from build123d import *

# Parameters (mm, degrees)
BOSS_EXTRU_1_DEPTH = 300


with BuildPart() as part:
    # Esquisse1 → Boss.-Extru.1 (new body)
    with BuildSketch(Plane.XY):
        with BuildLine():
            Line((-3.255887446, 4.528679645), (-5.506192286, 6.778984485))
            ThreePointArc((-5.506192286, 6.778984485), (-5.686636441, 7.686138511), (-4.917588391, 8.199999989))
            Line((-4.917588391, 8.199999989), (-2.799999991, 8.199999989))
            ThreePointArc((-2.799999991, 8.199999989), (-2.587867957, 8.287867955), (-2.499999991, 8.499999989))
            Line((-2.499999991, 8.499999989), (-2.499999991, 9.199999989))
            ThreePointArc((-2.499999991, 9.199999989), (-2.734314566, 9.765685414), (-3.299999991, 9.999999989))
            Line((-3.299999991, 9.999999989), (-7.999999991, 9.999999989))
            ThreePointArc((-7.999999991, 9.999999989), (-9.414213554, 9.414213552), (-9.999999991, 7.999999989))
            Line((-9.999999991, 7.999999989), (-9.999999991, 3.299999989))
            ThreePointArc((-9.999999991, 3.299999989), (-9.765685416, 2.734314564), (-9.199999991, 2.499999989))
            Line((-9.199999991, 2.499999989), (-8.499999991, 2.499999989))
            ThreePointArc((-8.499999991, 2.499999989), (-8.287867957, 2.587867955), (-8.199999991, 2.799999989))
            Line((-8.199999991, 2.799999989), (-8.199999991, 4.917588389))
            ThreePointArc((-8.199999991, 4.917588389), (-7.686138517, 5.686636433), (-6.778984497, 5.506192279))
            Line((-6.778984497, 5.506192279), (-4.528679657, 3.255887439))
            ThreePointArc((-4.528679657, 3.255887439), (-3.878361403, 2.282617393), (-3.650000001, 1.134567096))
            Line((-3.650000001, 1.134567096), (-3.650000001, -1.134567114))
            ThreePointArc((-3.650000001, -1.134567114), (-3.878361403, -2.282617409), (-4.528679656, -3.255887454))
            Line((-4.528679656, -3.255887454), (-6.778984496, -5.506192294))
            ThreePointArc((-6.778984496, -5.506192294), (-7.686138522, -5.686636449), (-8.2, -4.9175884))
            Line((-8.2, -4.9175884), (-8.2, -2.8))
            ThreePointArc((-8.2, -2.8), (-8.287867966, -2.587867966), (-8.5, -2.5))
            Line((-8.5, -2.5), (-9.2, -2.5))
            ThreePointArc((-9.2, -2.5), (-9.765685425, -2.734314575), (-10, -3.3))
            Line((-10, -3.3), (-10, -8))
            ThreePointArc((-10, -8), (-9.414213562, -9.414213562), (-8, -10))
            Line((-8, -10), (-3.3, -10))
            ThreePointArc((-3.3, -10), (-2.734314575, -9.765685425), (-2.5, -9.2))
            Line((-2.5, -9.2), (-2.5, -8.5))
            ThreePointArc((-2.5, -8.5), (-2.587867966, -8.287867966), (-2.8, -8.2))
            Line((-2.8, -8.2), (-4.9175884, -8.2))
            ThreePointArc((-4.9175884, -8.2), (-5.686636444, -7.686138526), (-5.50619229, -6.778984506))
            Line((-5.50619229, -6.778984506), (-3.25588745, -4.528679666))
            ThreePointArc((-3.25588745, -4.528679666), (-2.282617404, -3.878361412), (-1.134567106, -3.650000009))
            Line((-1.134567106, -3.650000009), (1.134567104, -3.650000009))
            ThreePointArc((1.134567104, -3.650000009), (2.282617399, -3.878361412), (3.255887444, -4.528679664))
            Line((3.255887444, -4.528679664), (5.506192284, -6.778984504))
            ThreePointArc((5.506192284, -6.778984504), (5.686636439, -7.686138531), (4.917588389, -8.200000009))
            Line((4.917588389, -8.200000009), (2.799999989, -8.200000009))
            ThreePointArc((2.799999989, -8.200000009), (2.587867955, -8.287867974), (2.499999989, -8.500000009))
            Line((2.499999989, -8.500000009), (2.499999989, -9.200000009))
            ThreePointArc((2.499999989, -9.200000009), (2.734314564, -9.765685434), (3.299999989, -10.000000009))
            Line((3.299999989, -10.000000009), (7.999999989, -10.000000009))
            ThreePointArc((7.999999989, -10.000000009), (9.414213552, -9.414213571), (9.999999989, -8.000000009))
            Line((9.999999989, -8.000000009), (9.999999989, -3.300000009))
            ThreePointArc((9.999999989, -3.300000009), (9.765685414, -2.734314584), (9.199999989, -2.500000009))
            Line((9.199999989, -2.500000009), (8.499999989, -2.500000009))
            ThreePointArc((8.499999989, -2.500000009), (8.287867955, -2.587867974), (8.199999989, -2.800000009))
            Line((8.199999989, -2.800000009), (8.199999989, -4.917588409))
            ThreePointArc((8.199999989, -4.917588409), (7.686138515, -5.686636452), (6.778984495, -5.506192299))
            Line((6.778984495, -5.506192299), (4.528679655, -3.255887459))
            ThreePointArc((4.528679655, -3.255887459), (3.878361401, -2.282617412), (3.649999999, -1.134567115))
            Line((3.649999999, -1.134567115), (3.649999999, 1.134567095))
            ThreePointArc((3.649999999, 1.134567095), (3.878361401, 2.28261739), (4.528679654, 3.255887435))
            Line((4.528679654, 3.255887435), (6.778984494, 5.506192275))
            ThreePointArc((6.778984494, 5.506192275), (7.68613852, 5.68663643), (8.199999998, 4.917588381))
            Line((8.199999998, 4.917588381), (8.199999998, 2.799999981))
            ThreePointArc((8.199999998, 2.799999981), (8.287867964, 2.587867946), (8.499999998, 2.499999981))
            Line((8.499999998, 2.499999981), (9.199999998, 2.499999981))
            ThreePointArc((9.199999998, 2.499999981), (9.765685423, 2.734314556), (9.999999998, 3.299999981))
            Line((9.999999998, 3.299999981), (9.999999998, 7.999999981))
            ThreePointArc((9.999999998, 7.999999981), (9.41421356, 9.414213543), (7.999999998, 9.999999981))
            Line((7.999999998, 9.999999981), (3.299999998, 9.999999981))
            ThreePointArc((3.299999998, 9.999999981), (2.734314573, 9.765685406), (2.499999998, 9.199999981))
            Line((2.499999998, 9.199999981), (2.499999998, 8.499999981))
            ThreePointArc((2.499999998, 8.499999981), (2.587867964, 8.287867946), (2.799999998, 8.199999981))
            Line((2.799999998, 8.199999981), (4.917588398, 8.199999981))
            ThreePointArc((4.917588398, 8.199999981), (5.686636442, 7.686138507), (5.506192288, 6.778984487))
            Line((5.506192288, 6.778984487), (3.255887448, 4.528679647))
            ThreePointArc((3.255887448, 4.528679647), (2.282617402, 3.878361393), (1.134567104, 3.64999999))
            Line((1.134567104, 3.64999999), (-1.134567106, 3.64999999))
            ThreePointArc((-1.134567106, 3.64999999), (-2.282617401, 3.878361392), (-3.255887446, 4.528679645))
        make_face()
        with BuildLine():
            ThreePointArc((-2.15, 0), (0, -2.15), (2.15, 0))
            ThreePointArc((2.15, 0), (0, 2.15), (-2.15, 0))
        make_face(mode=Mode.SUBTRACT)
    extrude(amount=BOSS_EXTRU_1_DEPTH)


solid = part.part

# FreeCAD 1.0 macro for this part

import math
import FreeCAD as App
import Part
import Sketcher
Q = App.Units.Quantity

doc = App.newDocument("Part")
body = doc.addObject("PartDesign::Body", "Body")

# Sketch on XY plane
sketch1 = body.newObject("Sketcher::SketchObject", "Sketch")
sketch1.AttachmentSupport = (doc.getObject("XY_Plane"), [""])
sketch1.MapMode = "FlatFace"
sketch1.addGeometry(Part.LineSegment(App.Vector(-3.255887, 4.52868, 0), App.Vector(-5.506192, 6.778984, 0)), False)
sketch1.addGeometry(Part.ArcOfCircle(Part.Circle(App.Vector(-4.917588, 7.367588, 0), App.Vector(0, 0, 1), 0.832412), math.radians(90), math.radians(225)), False)
sketch1.addGeometry(Part.LineSegment(App.Vector(-4.917588, 8.2, 0), App.Vector(-2.8, 8.2, 0)), False)
sketch1.addGeometry(Part.ArcOfCircle(Part.Circle(App.Vector(-2.8, 8.5, 0), App.Vector(0, 0, 1), 0.3), math.radians(-90), math.radians(0)), False)
sketch1.addGeometry(Part.LineSegment(App.Vector(-2.5, 8.5, 0), App.Vector(-2.5, 9.2, 0)), False)
sketch1.addGeometry(Part.ArcOfCircle(Part.Circle(App.Vector(-3.3, 9.2, 0), App.Vector(0, 0, 1), 0.8), math.radians(0), math.radians(90)), False)
sketch1.addGeometry(Part.LineSegment(App.Vector(-3.3, 10, 0), App.Vector(-8, 10, 0)), False)
sketch1.addGeometry(Part.ArcOfCircle(Part.Circle(App.Vector(-8, 8, 0), App.Vector(0, 0, 1), 2), math.radians(90), math.radians(180)), False)
sketch1.addGeometry(Part.LineSegment(App.Vector(-10, 8, 0), App.Vector(-10, 3.3, 0)), False)
sketch1.addGeometry(Part.ArcOfCircle(Part.Circle(App.Vector(-9.2, 3.3, 0), App.Vector(0, 0, 1), 0.8), math.radians(180), math.radians(270)), False)
sketch1.addGeometry(Part.LineSegment(App.Vector(-9.2, 2.5, 0), App.Vector(-8.5, 2.5, 0)), False)
sketch1.addGeometry(Part.ArcOfCircle(Part.Circle(App.Vector(-8.5, 2.8, 0), App.Vector(0, 0, 1), 0.3), math.radians(-90), math.radians(0)), False)
sketch1.addGeometry(Part.LineSegment(App.Vector(-8.2, 2.8, 0), App.Vector(-8.2, 4.917588, 0)), False)
sketch1.addGeometry(Part.ArcOfCircle(Part.Circle(App.Vector(-7.367588, 4.917588, 0), App.Vector(0, 0, 1), 0.832412), math.radians(45), math.radians(180)), False)
sketch1.addGeometry(Part.LineSegment(App.Vector(-6.778984, 5.506192, 0), App.Vector(-4.52868, 3.255887, 0)), False)
sketch1.addGeometry(Part.ArcOfCircle(Part.Circle(App.Vector(-6.65, 1.134567, 0), App.Vector(0, 0, 1), 3), math.radians(0), math.radians(45)), False)
sketch1.addGeometry(Part.LineSegment(App.Vector(-3.65, 1.134567, 0), App.Vector(-3.65, -1.134567, 0)), False)
sketch1.addGeometry(Part.ArcOfCircle(Part.Circle(App.Vector(-6.65, -1.134567, 0), App.Vector(0, 0, 1), 3), math.radians(-45), math.radians(0)), False)
sketch1.addGeometry(Part.LineSegment(App.Vector(-4.52868, -3.255887, 0), App.Vector(-6.778984, -5.506192, 0)), False)
sketch1.addGeometry(Part.ArcOfCircle(Part.Circle(App.Vector(-7.367588, -4.917588, 0), App.Vector(0, 0, 1), 0.832412), math.radians(180), math.radians(315)), False)
sketch1.addGeometry(Part.LineSegment(App.Vector(-8.2, -4.917588, 0), App.Vector(-8.2, -2.8, 0)), False)
sketch1.addGeometry(Part.ArcOfCircle(Part.Circle(App.Vector(-8.5, -2.8, 0), App.Vector(0, 0, 1), 0.3), math.radians(0), math.radians(90)), False)
sketch1.addGeometry(Part.LineSegment(App.Vector(-8.5, -2.5, 0), App.Vector(-9.2, -2.5, 0)), False)
sketch1.addGeometry(Part.ArcOfCircle(Part.Circle(App.Vector(-9.2, -3.3, 0), App.Vector(0, 0, 1), 0.8), math.radians(90), math.radians(180)), False)
sketch1.addGeometry(Part.LineSegment(App.Vector(-10, -3.3, 0), App.Vector(-10, -8, 0)), False)
sketch1.addGeometry(Part.ArcOfCircle(Part.Circle(App.Vector(-8, -8, 0), App.Vector(0, 0, 1), 2), math.radians(-180), math.radians(-90)), False)
sketch1.addGeometry(Part.LineSegment(App.Vector(-8, -10, 0), App.Vector(-3.3, -10, 0)), False)
sketch1.addGeometry(Part.ArcOfCircle(Part.Circle(App.Vector(-3.3, -9.2, 0), App.Vector(0, 0, 1), 0.8), math.radians(-90), math.radians(0)), False)
sketch1.addGeometry(Part.LineSegment(App.Vector(-2.5, -9.2, 0), App.Vector(-2.5, -8.5, 0)), False)
sketch1.addGeometry(Part.ArcOfCircle(Part.Circle(App.Vector(-2.8, -8.5, 0), App.Vector(0, 0, 1), 0.3), math.radians(0), math.radians(90)), False)
sketch1.addGeometry(Part.LineSegment(App.Vector(-2.8, -8.2, 0), App.Vector(-4.917588, -8.2, 0)), False)
sketch1.addGeometry(Part.ArcOfCircle(Part.Circle(App.Vector(-4.917588, -7.367588, 0), App.Vector(0, 0, 1), 0.832412), math.radians(135), math.radians(270)), False)
sketch1.addGeometry(Part.LineSegment(App.Vector(-5.506192, -6.778985, 0), App.Vector(-3.255887, -4.52868, 0)), False)
sketch1.addGeometry(Part.ArcOfCircle(Part.Circle(App.Vector(-1.134567, -6.65, 0), App.Vector(0, 0, 1), 3), math.radians(90), math.radians(135)), False)
sketch1.addGeometry(Part.LineSegment(App.Vector(-1.134567, -3.65, 0), App.Vector(1.134567, -3.65, 0)), False)
sketch1.addGeometry(Part.ArcOfCircle(Part.Circle(App.Vector(1.134567, -6.65, 0), App.Vector(0, 0, 1), 3), math.radians(45), math.radians(90)), False)
sketch1.addGeometry(Part.LineSegment(App.Vector(3.255887, -4.52868, 0), App.Vector(5.506192, -6.778985, 0)), False)
sketch1.addGeometry(Part.ArcOfCircle(Part.Circle(App.Vector(4.917588, -7.367588, 0), App.Vector(0, 0, 1), 0.832412), math.radians(-90), math.radians(45)), False)
sketch1.addGeometry(Part.LineSegment(App.Vector(4.917588, -8.2, 0), App.Vector(2.8, -8.2, 0)), False)
sketch1.addGeometry(Part.ArcOfCircle(Part.Circle(App.Vector(2.8, -8.5, 0), App.Vector(0, 0, 1), 0.3), math.radians(90), math.radians(180)), False)
sketch1.addGeometry(Part.LineSegment(App.Vector(2.5, -8.5, 0), App.Vector(2.5, -9.2, 0)), False)
sketch1.addGeometry(Part.ArcOfCircle(Part.Circle(App.Vector(3.3, -9.2, 0), App.Vector(0, 0, 1), 0.8), math.radians(180), math.radians(270)), False)
sketch1.addGeometry(Part.LineSegment(App.Vector(3.3, -10, 0), App.Vector(8, -10, 0)), False)
sketch1.addGeometry(Part.ArcOfCircle(Part.Circle(App.Vector(8, -8, 0), App.Vector(0, 0, 1), 2), math.radians(-90), math.radians(0)), False)
sketch1.addGeometry(Part.LineSegment(App.Vector(10, -8, 0), App.Vector(10, -3.3, 0)), False)
sketch1.addGeometry(Part.ArcOfCircle(Part.Circle(App.Vector(9.2, -3.3, 0), App.Vector(0, 0, 1), 0.8), math.radians(0), math.radians(90)), False)
sketch1.addGeometry(Part.LineSegment(App.Vector(9.2, -2.5, 0), App.Vector(8.5, -2.5, 0)), False)
sketch1.addGeometry(Part.ArcOfCircle(Part.Circle(App.Vector(8.5, -2.8, 0), App.Vector(0, 0, 1), 0.3), math.radians(90), math.radians(180)), False)
sketch1.addGeometry(Part.LineSegment(App.Vector(8.2, -2.8, 0), App.Vector(8.2, -4.917588, 0)), False)
sketch1.addGeometry(Part.ArcOfCircle(Part.Circle(App.Vector(7.367588, -4.917588, 0), App.Vector(0, 0, 1), 0.832412), math.radians(-135), math.radians(0)), False)
sketch1.addGeometry(Part.LineSegment(App.Vector(6.778984, -5.506192, 0), App.Vector(4.52868, -3.255887, 0)), False)
sketch1.addGeometry(Part.ArcOfCircle(Part.Circle(App.Vector(6.65, -1.134567, 0), App.Vector(0, 0, 1), 3), math.radians(180), math.radians(225)), False)
sketch1.addGeometry(Part.LineSegment(App.Vector(3.65, -1.134567, 0), App.Vector(3.65, 1.134567, 0)), False)
sketch1.addGeometry(Part.ArcOfCircle(Part.Circle(App.Vector(6.65, 1.134567, 0), App.Vector(0, 0, 1), 3), math.radians(135), math.radians(180)), False)
sketch1.addGeometry(Part.LineSegment(App.Vector(4.52868, 3.255887, 0), App.Vector(6.778984, 5.506192, 0)), False)
sketch1.addGeometry(Part.ArcOfCircle(Part.Circle(App.Vector(7.367588, 4.917588, 0), App.Vector(0, 0, 1), 0.832412), math.radians(0), math.radians(135)), False)
sketch1.addGeometry(Part.LineSegment(App.Vector(8.2, 4.917588, 0), App.Vector(8.2, 2.8, 0)), False)
sketch1.addGeometry(Part.ArcOfCircle(Part.Circle(App.Vector(8.5, 2.8, 0), App.Vector(0, 0, 1), 0.3), math.radians(180), math.radians(270)), False)
sketch1.addGeometry(Part.LineSegment(App.Vector(8.5, 2.5, 0), App.Vector(9.2, 2.5, 0)), False)
sketch1.addGeometry(Part.ArcOfCircle(Part.Circle(App.Vector(9.2, 3.3, 0), App.Vector(0, 0, 1), 0.8), math.radians(-90), math.radians(0)), False)
sketch1.addGeometry(Part.LineSegment(App.Vector(10, 3.3, 0), App.Vector(10, 8, 0)), False)
sketch1.addGeometry(Part.ArcOfCircle(Part.Circle(App.Vector(8, 8, 0), App.Vector(0, 0, 1), 2), math.radians(0), math.radians(90)), False)
sketch1.addGeometry(Part.LineSegment(App.Vector(8, 10, 0), App.Vector(3.3, 10, 0)), False)
sketch1.addGeometry(Part.ArcOfCircle(Part.Circle(App.Vector(3.3, 9.2, 0), App.Vector(0, 0, 1), 0.8), math.radians(90), math.radians(180)), False)
sketch1.addGeometry(Part.LineSegment(App.Vector(2.5, 9.2, 0), App.Vector(2.5, 8.5, 0)), False)
sketch1.addGeometry(Part.ArcOfCircle(Part.Circle(App.Vector(2.8, 8.5, 0), App.Vector(0, 0, 1), 0.3), math.radians(180), math.radians(270)), False)
sketch1.addGeometry(Part.LineSegment(App.Vector(2.8, 8.2, 0), App.Vector(4.917588, 8.2, 0)), False)
sketch1.addGeometry(Part.ArcOfCircle(Part.Circle(App.Vector(4.917588, 7.367588, 0), App.Vector(0, 0, 1), 0.832412), math.radians(-45), math.radians(90)), False)
sketch1.addGeometry(Part.LineSegment(App.Vector(5.506192, 6.778984, 0), App.Vector(3.255887, 4.52868, 0)), False)
sketch1.addGeometry(Part.ArcOfCircle(Part.Circle(App.Vector(1.134567, 6.65, 0), App.Vector(0, 0, 1), 3), math.radians(-90), math.radians(-45)), False)
sketch1.addGeometry(Part.LineSegment(App.Vector(1.134567, 3.65, 0), App.Vector(-1.134567, 3.65, 0)), False)
sketch1.addGeometry(Part.ArcOfCircle(Part.Circle(App.Vector(-1.134567, 6.65, 0), App.Vector(0, 0, 1), 3), math.radians(-135), math.radians(-90)), False)
sketch1.addGeometry(Part.Circle(App.Vector(0, 0, 0), App.Vector(0, 0, 1), 2.15), False)
sketch1.addConstraint(Sketcher.Constraint("Tangent", 0, 2, 1, 2))
sketch1.addConstraint(Sketcher.Constraint("Tangent", 1, 1, 2, 1))
sketch1.addConstraint(Sketcher.Constraint("Tangent", 2, 2, 3, 1))
sketch1.addConstraint(Sketcher.Constraint("Tangent", 3, 2, 4, 1))
sketch1.addConstraint(Sketcher.Constraint("Tangent", 4, 2, 5, 1))
sketch1.addConstraint(Sketcher.Constraint("Tangent", 5, 2, 6, 1))
sketch1.addConstraint(Sketcher.Constraint("Tangent", 6, 2, 7, 1))
sketch1.addConstraint(Sketcher.Constraint("Tangent", 7, 2, 8, 1))
sketch1.addConstraint(Sketcher.Constraint("Tangent", 8, 2, 9, 1))
sketch1.addConstraint(Sketcher.Constraint("Tangent", 9, 2, 10, 1))
sketch1.addConstraint(Sketcher.Constraint("Tangent", 10, 2, 11, 1))
sketch1.addConstraint(Sketcher.Constraint("Tangent", 11, 2, 12, 1))
sketch1.addConstraint(Sketcher.Constraint("Tangent", 12, 2, 13, 2))
sketch1.addConstraint(Sketcher.Constraint("Tangent", 13, 1, 14, 1))
sketch1.addConstraint(Sketcher.Constraint("Tangent", 14, 2, 15, 2))
sketch1.addConstraint(Sketcher.Constraint("Tangent", 15, 1, 16, 1))
sketch1.addConstraint(Sketcher.Constraint("Tangent", 16, 2, 17, 2))
sketch1.addConstraint(Sketcher.Constraint("Tangent", 17, 1, 18, 1))
sketch1.addConstraint(Sketcher.Constraint("Tangent", 18, 2, 19, 2))
sketch1.addConstraint(Sketcher.Constraint("Tangent", 19, 1, 20, 1))
sketch1.addConstraint(Sketcher.Constraint("Tangent", 20, 2, 21, 1))
sketch1.addConstraint(Sketcher.Constraint("Tangent", 21, 2, 22, 1))
sketch1.addConstraint(Sketcher.Constraint("Tangent", 22, 2, 23, 1))
sketch1.addConstraint(Sketcher.Constraint("Tangent", 23, 2, 24, 1))
sketch1.addConstraint(Sketcher.Constraint("Tangent", 24, 2, 25, 1))
sketch1.addConstraint(Sketcher.Constraint("Tangent", 25, 2, 26, 1))
sketch1.addConstraint(Sketcher.Constraint("Tangent", 26, 2, 27, 1))
sketch1.addConstraint(Sketcher.Constraint("Tangent", 27, 2, 28, 1))
sketch1.addConstraint(Sketcher.Constraint("Tangent", 28, 2, 29, 1))
sketch1.addConstraint(Sketcher.Constraint("Tangent", 29, 2, 30, 1))
sketch1.addConstraint(Sketcher.Constraint("Tangent", 30, 2, 31, 2))
sketch1.addConstraint(Sketcher.Constraint("Tangent", 31, 1, 32, 1))
sketch1.addConstraint(Sketcher.Constraint("Tangent", 32, 2, 33, 2))
sketch1.addConstraint(Sketcher.Constraint("Tangent", 33, 1, 34, 1))
sketch1.addConstraint(Sketcher.Constraint("Tangent", 34, 2, 35, 2))
sketch1.addConstraint(Sketcher.Constraint("Tangent", 35, 1, 36, 1))
sketch1.addConstraint(Sketcher.Constraint("Tangent", 36, 2, 37, 2))
sketch1.addConstraint(Sketcher.Constraint("Tangent", 37, 1, 38, 1))
sketch1.addConstraint(Sketcher.Constraint("Tangent", 38, 2, 39, 1))
sketch1.addConstraint(Sketcher.Constraint("Tangent", 39, 2, 40, 1))
sketch1.addConstraint(Sketcher.Constraint("Tangent", 40, 2, 41, 1))
sketch1.addConstraint(Sketcher.Constraint("Tangent", 41, 2, 42, 1))
sketch1.addConstraint(Sketcher.Constraint("Tangent", 42, 2, 43, 1))
sketch1.addConstraint(Sketcher.Constraint("Tangent", 43, 2, 44, 1))
sketch1.addConstraint(Sketcher.Constraint("Tangent", 44, 2, 45, 1))
sketch1.addConstraint(Sketcher.Constraint("Tangent", 45, 2, 46, 1))
sketch1.addConstraint(Sketcher.Constraint("Tangent", 46, 2, 47, 1))
sketch1.addConstraint(Sketcher.Constraint("Tangent", 47, 2, 48, 1))
sketch1.addConstraint(Sketcher.Constraint("Tangent", 48, 2, 49, 2))
sketch1.addConstraint(Sketcher.Constraint("Tangent", 49, 1, 50, 1))
sketch1.addConstraint(Sketcher.Constraint("Tangent", 50, 2, 51, 2))
sketch1.addConstraint(Sketcher.Constraint("Tangent", 51, 1, 52, 1))
sketch1.addConstraint(Sketcher.Constraint("Tangent", 52, 2, 53, 2))
sketch1.addConstraint(Sketcher.Constraint("Tangent", 53, 1, 54, 1))
sketch1.addConstraint(Sketcher.Constraint("Tangent", 54, 2, 55, 2))
sketch1.addConstraint(Sketcher.Constraint("Tangent", 55, 1, 56, 1))
sketch1.addConstraint(Sketcher.Constraint("Tangent", 56, 2, 57, 1))
sketch1.addConstraint(Sketcher.Constraint("Tangent", 57, 2, 58, 1))
sketch1.addConstraint(Sketcher.Constraint("Tangent", 58, 2, 59, 1))
sketch1.addConstraint(Sketcher.Constraint("Tangent", 59, 2, 60, 1))
sketch1.addConstraint(Sketcher.Constraint("Tangent", 60, 2, 61, 1))
sketch1.addConstraint(Sketcher.Constraint("Tangent", 61, 2, 62, 1))
sketch1.addConstraint(Sketcher.Constraint("Tangent", 62, 2, 63, 1))
sketch1.addConstraint(Sketcher.Constraint("Tangent", 63, 2, 64, 1))
sketch1.addConstraint(Sketcher.Constraint("Tangent", 64, 2, 65, 1))
sketch1.addConstraint(Sketcher.Constraint("Tangent", 65, 2, 66, 1))
sketch1.addConstraint(Sketcher.Constraint("Tangent", 66, 2, 67, 2))
sketch1.addConstraint(Sketcher.Constraint("Tangent", 67, 1, 68, 1))
sketch1.addConstraint(Sketcher.Constraint("Tangent", 68, 2, 69, 2))
sketch1.addConstraint(Sketcher.Constraint("Tangent", 69, 1, 70, 1))
sketch1.addConstraint(Sketcher.Constraint("Tangent", 70, 2, 71, 2))
sketch1.addConstraint(Sketcher.Constraint("Tangent", 71, 1, 0, 1))
sketch1.addConstraint(Sketcher.Constraint("Horizontal", 2))
sketch1.addConstraint(Sketcher.Constraint("Vertical", 4))
sketch1.addConstraint(Sketcher.Constraint("Horizontal", 6))
sketch1.addConstraint(Sketcher.Constraint("Vertical", 8))
sketch1.addConstraint(Sketcher.Constraint("Horizontal", 10))
sketch1.addConstraint(Sketcher.Constraint("Vertical", 12))
sketch1.addConstraint(Sketcher.Constraint("Vertical", 16))
sketch1.addConstraint(Sketcher.Constraint("Vertical", 20))
sketch1.addConstraint(Sketcher.Constraint("Horizontal", 22))
sketch1.addConstraint(Sketcher.Constraint("Vertical", 24))
sketch1.addConstraint(Sketcher.Constraint("Horizontal", 26))
sketch1.addConstraint(Sketcher.Constraint("Vertical", 28))
sketch1.addConstraint(Sketcher.Constraint("Horizontal", 30))
sketch1.addConstraint(Sketcher.Constraint("Horizontal", 34))
sketch1.addConstraint(Sketcher.Constraint("Horizontal", 38))
sketch1.addConstraint(Sketcher.Constraint("Vertical", 40))
sketch1.addConstraint(Sketcher.Constraint("Horizontal", 42))
sketch1.addConstraint(Sketcher.Constraint("Vertical", 44))
sketch1.addConstraint(Sketcher.Constraint("Horizontal", 46))
sketch1.addConstraint(Sketcher.Constraint("Vertical", 48))
sketch1.addConstraint(Sketcher.Constraint("Vertical", 52))
sketch1.addConstraint(Sketcher.Constraint("Vertical", 56))
sketch1.addConstraint(Sketcher.Constraint("Horizontal", 58))
sketch1.addConstraint(Sketcher.Constraint("Vertical", 60))
sketch1.addConstraint(Sketcher.Constraint("Horizontal", 62))
sketch1.addConstraint(Sketcher.Constraint("Vertical", 64))
sketch1.addConstraint(Sketcher.Constraint("Horizontal", 66))
sketch1.addConstraint(Sketcher.Constraint("Horizontal", 70))
sketch1.addConstraint(Sketcher.Constraint("Coincident", 72, 3, -1, 1))
sketch1.addConstraint(Sketcher.Constraint("Equal", 5, 9))
sketch1.addConstraint(Sketcher.Constraint("Equal", 3, 11))
sketch1.addConstraint(Sketcher.Constraint("Equal", 1, 13))
sketch1.addConstraint(Sketcher.Constraint("Equal", 15, 17))
sketch1.addConstraint(Sketcher.Constraint("Equal", 13, 19))
sketch1.addConstraint(Sketcher.Constraint("Equal", 11, 21))
sketch1.addConstraint(Sketcher.Constraint("Equal", 9, 23))
sketch1.addConstraint(Sketcher.Constraint("Equal", 7, 25))
sketch1.addConstraint(Sketcher.Constraint("Equal", 23, 27))
sketch1.addConstraint(Sketcher.Constraint("Equal", 21, 29))
sketch1.addConstraint(Sketcher.Constraint("Equal", 19, 31))
sketch1.addConstraint(Sketcher.Constraint("Equal", 17, 33))
sketch1.addConstraint(Sketcher.Constraint("Equal", 33, 35))
sketch1.addConstraint(Sketcher.Constraint("Equal", 31, 37))
sketch1.addConstraint(Sketcher.Constraint("Equal", 29, 39))
sketch1.addConstraint(Sketcher.Constraint("Equal", 27, 41))
sketch1.addConstraint(Sketcher.Constraint("Equal", 25, 43))
sketch1.addConstraint(Sketcher.Constraint("Equal", 41, 45))
sketch1.addConstraint(Sketcher.Constraint("Equal", 39, 47))
sketch1.addConstraint(Sketcher.Constraint("Equal", 37, 49))
sketch1.addConstraint(Sketcher.Constraint("Equal", 35, 51))
sketch1.addConstraint(Sketcher.Constraint("Equal", 51, 53))
sketch1.addConstraint(Sketcher.Constraint("Equal", 49, 55))
sketch1.addConstraint(Sketcher.Constraint("Equal", 47, 57))
sketch1.addConstraint(Sketcher.Constraint("Equal", 45, 59))
sketch1.addConstraint(Sketcher.Constraint("Equal", 43, 61))
sketch1.addConstraint(Sketcher.Constraint("Equal", 59, 63))
sketch1.addConstraint(Sketcher.Constraint("Equal", 57, 65))
sketch1.addConstraint(Sketcher.Constraint("Equal", 55, 67))
sketch1.addConstraint(Sketcher.Constraint("Equal", 53, 69))
sketch1.addConstraint(Sketcher.Constraint("Equal", 69, 71))
sketch1.addConstraint(Sketcher.Constraint("Symmetric", 1, 3, 37, 3, -1, 1))
sketch1.addConstraint(Sketcher.Constraint("Symmetric", 5, 3, 41, 3, -1, 1))
sketch1.addConstraint(Sketcher.Constraint("Symmetric", 9, 3, 45, 3, -1, 1))
sketch1.addConstraint(Sketcher.Constraint("Symmetric", 13, 3, 49, 3, -1, 1))
sketch1.addConstraint(Sketcher.Constraint("Symmetric", 15, 3, 51, 3, -1, 1))
sketch1.addConstraint(Sketcher.Constraint("Symmetric", 19, 3, 55, 3, -1, 1))
sketch1.addConstraint(Sketcher.Constraint("Symmetric", 23, 3, 59, 3, -1, 1))
sketch1.addConstraint(Sketcher.Constraint("Symmetric", 27, 3, 63, 3, -1, 1))
sketch1.addConstraint(Sketcher.Constraint("Symmetric", 31, 3, 67, 3, -1, 1))
sketch1.addConstraint(Sketcher.Constraint("Symmetric", 33, 3, 69, 3, -1, 1))
sketch1.addConstraint(Sketcher.Constraint("Symmetric", 31, 3, 37, 3, -2))
sketch1.addConstraint(Sketcher.Constraint("Symmetric", 27, 3, 41, 3, -2))
sketch1.addConstraint(Sketcher.Constraint("Symmetric", 23, 3, 45, 3, -2))
sketch1.addConstraint(Sketcher.Constraint("Symmetric", 19, 3, 49, 3, -2))
sketch1.addConstraint(Sketcher.Constraint("Parallel", 0, 14))
sketch1.addConstraint(Sketcher.Constraint("Perpendicular", 14, 18))
sketch1.addConstraint(Sketcher.Constraint("Parallel", 18, 32))
sketch1.addConstraint(Sketcher.Constraint("Perpendicular", 32, 36))
sketch1.addConstraint(Sketcher.Constraint("Perpendicular", 50, 54))
sketch1.addConstraint(Sketcher.Constraint("Horizontal", 17, 3, 51, 3))
sketch1.addConstraint(Sketcher.Constraint("Equal", 58, 4))
sketch1.addConstraint(Sketcher.Constraint("Equal", 62, 8))
sketch1.addConstraint(Sketcher.Constraint("Equal", 66, 12))
sketch1.addConstraint(Sketcher.Constraint("Equal", 70, 16))
sketch1.addConstraint(Sketcher.Constraint("Equal", 0, 14))
sketch1.addConstraint(Sketcher.Constraint("Radius", 7, Q("2 mm")))
sketch1.addConstraint(Sketcher.Constraint("Radius", 15, Q("3 mm")))
sketch1.addConstraint(Sketcher.Constraint("Diameter", 72, Q("4.3 mm")))
sketch1.addConstraint(Sketcher.Constraint("Radius", 3, Q("0.3 mm")))
sketch1.addConstraint(Sketcher.Constraint("Radius", 5, Q("0.8 mm")))
sketch1.addConstraint(Sketcher.Constraint("DistanceX", 6, 2, 6, 1, Q("4.7 mm")))
sketch1.addConstraint(Sketcher.Constraint("DistanceX", 10, 1, 10, 2, Q("0.7 mm")))
sketch1.addConstraint(Sketcher.Constraint("DistanceX", 7, 3, -1, 1, Q("8 mm")))
sketch1.addConstraint(Sketcher.Constraint("DistanceX", 15, 3, -1, 1, Q("6.65 mm")))
sketch1.addConstraint(Sketcher.Constraint("Radius", 1, Q("0.832412 mm")))
sketch1.addConstraint(Sketcher.Constraint("DistanceX", 2, 1, 2, 2, Q("2.117588 mm")))
pad1 = body.newObject("PartDesign::Pad", "Pad")
pad1.Profile = sketch1
pad1.Length = 300

doc.recompute()
